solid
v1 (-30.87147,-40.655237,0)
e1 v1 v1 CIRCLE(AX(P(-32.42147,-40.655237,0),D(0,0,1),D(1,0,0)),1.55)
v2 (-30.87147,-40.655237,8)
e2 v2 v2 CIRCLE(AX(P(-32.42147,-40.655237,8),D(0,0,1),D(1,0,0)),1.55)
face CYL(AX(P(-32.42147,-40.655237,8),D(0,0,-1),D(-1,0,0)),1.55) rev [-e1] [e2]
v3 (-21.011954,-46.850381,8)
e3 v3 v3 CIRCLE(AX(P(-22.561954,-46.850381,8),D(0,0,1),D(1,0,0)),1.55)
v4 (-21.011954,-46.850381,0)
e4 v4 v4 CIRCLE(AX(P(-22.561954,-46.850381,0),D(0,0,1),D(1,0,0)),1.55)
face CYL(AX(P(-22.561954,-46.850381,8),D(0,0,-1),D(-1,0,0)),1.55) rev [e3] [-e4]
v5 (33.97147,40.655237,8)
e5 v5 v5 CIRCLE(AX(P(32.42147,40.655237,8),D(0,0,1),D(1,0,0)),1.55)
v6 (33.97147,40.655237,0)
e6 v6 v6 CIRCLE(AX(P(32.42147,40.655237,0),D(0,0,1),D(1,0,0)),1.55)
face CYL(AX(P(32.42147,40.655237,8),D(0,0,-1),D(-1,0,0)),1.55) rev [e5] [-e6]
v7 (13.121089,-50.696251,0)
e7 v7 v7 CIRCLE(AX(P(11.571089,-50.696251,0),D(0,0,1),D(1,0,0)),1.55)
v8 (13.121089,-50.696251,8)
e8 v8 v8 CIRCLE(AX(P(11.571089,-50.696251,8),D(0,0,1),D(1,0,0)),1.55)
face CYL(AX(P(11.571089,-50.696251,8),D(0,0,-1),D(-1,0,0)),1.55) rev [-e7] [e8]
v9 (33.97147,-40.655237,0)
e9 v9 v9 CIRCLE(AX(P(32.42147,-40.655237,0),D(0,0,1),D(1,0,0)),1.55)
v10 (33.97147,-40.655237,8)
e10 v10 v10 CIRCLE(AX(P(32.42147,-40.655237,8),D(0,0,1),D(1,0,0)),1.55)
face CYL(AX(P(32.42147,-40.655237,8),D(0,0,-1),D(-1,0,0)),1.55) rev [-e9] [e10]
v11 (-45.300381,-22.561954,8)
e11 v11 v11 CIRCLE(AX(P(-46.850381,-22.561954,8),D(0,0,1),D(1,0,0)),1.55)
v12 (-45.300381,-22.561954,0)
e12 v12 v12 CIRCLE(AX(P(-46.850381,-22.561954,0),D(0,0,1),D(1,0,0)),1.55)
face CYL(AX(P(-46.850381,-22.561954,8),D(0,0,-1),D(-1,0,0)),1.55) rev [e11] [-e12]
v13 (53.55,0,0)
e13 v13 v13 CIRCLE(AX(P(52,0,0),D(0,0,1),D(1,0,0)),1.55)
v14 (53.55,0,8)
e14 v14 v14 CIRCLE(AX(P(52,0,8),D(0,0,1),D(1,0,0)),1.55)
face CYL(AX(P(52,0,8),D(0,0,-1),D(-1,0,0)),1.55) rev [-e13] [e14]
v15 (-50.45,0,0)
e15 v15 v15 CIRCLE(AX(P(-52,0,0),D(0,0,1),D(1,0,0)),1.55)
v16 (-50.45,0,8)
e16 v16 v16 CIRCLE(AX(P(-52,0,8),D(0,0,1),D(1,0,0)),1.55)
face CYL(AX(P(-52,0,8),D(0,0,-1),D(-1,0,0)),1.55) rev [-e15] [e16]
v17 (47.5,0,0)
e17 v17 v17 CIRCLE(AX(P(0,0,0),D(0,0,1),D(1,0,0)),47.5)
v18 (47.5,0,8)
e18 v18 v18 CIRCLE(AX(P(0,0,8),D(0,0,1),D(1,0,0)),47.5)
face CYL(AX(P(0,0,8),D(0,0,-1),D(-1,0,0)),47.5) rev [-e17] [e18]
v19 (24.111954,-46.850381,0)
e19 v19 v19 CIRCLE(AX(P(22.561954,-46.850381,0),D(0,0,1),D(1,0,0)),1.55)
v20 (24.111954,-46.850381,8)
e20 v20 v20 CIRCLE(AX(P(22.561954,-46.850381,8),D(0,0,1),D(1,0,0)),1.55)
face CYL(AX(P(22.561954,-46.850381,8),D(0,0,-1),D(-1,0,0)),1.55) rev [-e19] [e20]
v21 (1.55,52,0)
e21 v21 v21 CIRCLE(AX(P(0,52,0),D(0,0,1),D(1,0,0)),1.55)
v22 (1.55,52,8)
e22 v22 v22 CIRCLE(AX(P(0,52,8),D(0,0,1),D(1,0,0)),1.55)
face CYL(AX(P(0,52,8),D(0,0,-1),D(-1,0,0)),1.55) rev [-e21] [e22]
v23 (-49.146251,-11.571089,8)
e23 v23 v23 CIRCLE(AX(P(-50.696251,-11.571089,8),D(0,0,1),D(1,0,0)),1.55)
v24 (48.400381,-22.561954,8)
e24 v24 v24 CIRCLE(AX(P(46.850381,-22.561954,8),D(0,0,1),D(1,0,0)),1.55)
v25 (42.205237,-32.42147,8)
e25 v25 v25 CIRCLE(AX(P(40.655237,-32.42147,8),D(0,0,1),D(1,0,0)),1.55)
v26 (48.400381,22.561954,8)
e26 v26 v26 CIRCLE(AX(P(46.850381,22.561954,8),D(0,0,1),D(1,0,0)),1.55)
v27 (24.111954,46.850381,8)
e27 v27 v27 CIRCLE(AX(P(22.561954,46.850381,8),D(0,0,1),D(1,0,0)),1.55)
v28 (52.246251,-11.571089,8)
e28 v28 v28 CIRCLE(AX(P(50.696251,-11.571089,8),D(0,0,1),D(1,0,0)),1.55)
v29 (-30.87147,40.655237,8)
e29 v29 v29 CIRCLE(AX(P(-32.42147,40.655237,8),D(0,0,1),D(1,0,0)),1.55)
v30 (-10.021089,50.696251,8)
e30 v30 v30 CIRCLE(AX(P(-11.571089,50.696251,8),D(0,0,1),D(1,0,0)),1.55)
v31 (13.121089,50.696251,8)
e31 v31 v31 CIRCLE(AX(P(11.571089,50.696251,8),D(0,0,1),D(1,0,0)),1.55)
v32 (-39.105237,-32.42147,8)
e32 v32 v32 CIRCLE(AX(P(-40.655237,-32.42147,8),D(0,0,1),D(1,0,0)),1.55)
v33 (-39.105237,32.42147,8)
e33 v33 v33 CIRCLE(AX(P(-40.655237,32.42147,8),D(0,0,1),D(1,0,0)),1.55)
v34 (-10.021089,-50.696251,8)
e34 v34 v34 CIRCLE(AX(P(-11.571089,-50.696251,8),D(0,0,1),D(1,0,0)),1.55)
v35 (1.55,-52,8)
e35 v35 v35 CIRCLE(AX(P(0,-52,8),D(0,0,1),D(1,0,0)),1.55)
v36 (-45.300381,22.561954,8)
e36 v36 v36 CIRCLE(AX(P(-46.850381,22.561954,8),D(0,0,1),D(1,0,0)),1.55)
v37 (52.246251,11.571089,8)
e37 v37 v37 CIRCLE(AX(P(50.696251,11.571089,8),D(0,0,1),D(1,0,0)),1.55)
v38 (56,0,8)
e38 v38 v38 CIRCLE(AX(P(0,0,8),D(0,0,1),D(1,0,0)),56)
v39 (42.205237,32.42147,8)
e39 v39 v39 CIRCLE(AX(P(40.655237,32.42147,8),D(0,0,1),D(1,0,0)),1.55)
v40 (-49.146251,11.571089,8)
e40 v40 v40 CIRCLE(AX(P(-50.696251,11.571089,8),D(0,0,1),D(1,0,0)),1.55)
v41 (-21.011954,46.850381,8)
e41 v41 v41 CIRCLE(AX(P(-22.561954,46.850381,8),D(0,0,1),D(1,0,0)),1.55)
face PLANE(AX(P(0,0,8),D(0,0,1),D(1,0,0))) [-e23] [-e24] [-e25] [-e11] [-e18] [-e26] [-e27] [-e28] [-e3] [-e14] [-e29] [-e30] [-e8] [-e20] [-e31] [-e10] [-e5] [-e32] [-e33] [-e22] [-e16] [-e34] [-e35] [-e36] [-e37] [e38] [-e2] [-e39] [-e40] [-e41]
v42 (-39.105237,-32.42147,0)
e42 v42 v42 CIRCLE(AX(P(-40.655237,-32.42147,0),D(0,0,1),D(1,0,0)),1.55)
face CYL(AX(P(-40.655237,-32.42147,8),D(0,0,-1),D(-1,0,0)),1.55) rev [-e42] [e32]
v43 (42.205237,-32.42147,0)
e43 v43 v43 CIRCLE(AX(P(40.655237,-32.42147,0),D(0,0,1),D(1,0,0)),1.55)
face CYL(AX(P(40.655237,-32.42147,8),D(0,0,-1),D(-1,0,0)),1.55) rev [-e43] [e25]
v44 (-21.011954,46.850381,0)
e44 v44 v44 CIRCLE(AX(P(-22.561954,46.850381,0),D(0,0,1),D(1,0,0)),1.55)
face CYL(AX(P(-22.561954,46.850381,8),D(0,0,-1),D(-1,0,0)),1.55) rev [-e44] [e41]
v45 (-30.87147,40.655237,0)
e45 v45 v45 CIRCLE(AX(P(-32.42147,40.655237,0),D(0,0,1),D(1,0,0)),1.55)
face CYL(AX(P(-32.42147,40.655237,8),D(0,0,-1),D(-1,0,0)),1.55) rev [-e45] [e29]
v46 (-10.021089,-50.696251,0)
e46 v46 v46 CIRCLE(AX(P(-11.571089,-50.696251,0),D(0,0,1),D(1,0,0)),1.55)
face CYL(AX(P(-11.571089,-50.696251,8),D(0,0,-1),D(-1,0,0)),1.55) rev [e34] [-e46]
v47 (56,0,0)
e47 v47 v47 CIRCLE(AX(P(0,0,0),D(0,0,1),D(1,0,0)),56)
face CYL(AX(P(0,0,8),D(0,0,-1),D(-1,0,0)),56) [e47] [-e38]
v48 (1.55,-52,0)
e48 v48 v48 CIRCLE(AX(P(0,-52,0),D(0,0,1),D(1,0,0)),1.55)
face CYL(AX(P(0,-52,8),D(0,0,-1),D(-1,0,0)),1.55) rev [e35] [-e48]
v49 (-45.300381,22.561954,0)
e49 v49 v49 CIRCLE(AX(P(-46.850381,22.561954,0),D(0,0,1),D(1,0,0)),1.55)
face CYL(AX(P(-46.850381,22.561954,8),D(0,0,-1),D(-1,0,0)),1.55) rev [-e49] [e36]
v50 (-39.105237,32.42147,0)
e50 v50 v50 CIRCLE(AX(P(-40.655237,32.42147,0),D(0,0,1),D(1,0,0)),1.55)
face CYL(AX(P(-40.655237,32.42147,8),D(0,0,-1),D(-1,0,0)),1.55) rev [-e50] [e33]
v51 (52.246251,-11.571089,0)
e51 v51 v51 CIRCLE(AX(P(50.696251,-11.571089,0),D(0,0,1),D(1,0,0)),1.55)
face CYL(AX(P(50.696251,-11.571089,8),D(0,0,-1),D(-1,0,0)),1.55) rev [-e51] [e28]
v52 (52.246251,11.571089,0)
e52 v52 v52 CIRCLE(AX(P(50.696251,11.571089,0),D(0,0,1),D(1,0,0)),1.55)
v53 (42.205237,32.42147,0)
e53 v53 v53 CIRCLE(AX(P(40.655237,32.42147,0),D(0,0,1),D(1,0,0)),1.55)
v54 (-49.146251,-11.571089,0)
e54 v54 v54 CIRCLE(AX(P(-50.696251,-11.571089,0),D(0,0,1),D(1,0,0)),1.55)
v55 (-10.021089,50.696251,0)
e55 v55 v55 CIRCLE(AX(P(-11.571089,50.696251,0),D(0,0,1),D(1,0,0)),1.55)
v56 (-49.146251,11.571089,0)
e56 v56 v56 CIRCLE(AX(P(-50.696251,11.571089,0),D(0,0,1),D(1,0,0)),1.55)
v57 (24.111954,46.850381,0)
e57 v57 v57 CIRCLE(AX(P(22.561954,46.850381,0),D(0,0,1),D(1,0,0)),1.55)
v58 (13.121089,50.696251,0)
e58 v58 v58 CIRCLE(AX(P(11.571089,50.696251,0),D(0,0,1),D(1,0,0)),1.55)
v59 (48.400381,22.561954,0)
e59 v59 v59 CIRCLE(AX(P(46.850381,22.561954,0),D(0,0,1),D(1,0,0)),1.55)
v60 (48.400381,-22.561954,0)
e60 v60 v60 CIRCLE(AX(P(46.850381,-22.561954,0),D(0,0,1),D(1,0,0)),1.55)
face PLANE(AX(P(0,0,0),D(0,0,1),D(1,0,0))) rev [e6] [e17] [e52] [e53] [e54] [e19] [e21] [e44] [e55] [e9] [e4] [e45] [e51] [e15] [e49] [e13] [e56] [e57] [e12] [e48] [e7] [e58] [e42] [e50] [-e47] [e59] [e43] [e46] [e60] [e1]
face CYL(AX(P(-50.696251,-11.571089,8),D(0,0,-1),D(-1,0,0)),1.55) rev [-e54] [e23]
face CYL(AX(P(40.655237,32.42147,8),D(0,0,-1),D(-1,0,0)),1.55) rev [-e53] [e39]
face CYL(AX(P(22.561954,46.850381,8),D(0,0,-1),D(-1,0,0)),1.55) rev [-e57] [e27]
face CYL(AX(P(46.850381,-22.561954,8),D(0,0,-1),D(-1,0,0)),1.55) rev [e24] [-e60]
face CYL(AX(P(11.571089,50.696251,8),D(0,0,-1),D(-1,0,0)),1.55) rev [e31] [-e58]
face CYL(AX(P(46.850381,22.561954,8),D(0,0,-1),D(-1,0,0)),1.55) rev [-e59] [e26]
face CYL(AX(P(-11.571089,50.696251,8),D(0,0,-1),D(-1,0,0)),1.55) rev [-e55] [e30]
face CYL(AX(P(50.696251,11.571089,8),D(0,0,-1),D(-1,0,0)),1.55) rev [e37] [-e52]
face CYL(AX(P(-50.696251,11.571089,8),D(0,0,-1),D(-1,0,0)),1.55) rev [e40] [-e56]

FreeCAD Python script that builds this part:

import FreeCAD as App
import Part
import Sketcher

doc = App.newDocument("Part")
params = doc.addObject("Spreadsheet::Sheet", "Params")
for row, (alias, value) in enumerate([
    ("sketch1_diameter", "112 mm"),
    ("sketch1_diameter2", "95 mm"),
    ("sketch1_diameter3", "3.1 mm"),
    ("pad1_length", "8 mm"),
], start=1):
    params.set(f"A{row}", alias)
    params.set(f"B{row}", "=" + value)
    params.setAlias(f"B{row}", alias)

body = doc.addObject("PartDesign::Body", "Body")

sketch1 = body.newObject("Sketcher::SketchObject", "Sketch")
sketch1.AttachmentSupport = (doc.getObject("XY_Plane"), [""])
sketch1.MapMode = "FlatFace"
sketch1.addGeometry([
    Part.Circle(App.Vector(0, 0, 0), App.Vector(0, 0, 1), 56),
    Part.Circle(App.Vector(-32.42147, -40.655237, 0), App.Vector(0, 0, 1), 1.55),
    Part.Circle(App.Vector(-40.655237, -32.42147, 0), App.Vector(0, 0, 1), 1.55),
    Part.Circle(App.Vector(-22.561954, -46.850381, 0), App.Vector(0, 0, 1), 1.55),
    Part.Circle(App.Vector(-11.571089, -50.696251, 0), App.Vector(0, 0, 1), 1.55),
    Part.Circle(App.Vector(0, -52, 0), App.Vector(0, 0, 1), 1.55),
    Part.Circle(App.Vector(-46.850381, -22.561954, 0), App.Vector(0, 0, 1), 1.55),
    Part.Circle(App.Vector(-50.696251, -11.571089, 0), App.Vector(0, 0, 1), 1.55),
    Part.Circle(App.Vector(-52, 0, 0), App.Vector(0, 0, 1), 1.55),
    Part.Circle(App.Vector(0, 0, 0), App.Vector(0, 0, 1), 47.5),
    Part.Circle(App.Vector(11.571089, -50.696251, 0), App.Vector(0, 0, 1), 1.55),
    Part.Circle(App.Vector(22.561954, -46.850381, 0), App.Vector(0, 0, 1), 1.55),
    Part.Circle(App.Vector(32.42147, -40.655237, 0), App.Vector(0, 0, 1), 1.55),
    Part.Circle(App.Vector(40.655237, -32.42147, 0), App.Vector(0, 0, 1), 1.55),
    Part.Circle(App.Vector(46.850381, -22.561954, 0), App.Vector(0, 0, 1), 1.55),
    Part.Circle(App.Vector(50.696251, -11.571089, 0), App.Vector(0, 0, 1), 1.55),
    Part.Circle(App.Vector(52, 0, 0), App.Vector(0, 0, 1), 1.55),
    Part.Circle(App.Vector(-50.696251, 11.571089, 0), App.Vector(0, 0, 1), 1.55),
    Part.Circle(App.Vector(-46.850381, 22.561954, 0), App.Vector(0, 0, 1), 1.55),
    Part.Circle(App.Vector(-40.655237, 32.42147, 0), App.Vector(0, 0, 1), 1.55),
    Part.Circle(App.Vector(-32.42147, 40.655237, 0), App.Vector(0, 0, 1), 1.55),
    Part.Circle(App.Vector(-22.561954, 46.850381, 0), App.Vector(0, 0, 1), 1.55),
    Part.Circle(App.Vector(-11.571089, 50.696251, 0), App.Vector(0, 0, 1), 1.55),
    Part.Circle(App.Vector(0, 52, 0), App.Vector(0, 0, 1), 1.55),
    Part.Circle(App.Vector(50.696251, 11.571089, 0), App.Vector(0, 0, 1), 1.55),
    Part.Circle(App.Vector(46.850381, 22.561954, 0), App.Vector(0, 0, 1), 1.55),
    Part.Circle(App.Vector(11.571089, 50.696251, 0), App.Vector(0, 0, 1), 1.55),
    Part.Circle(App.Vector(22.561954, 46.850381, 0), App.Vector(0, 0, 1), 1.55),
    Part.Circle(App.Vector(40.655237, 32.42147, 0), App.Vector(0, 0, 1), 1.55),
    Part.Circle(App.Vector(32.42147, 40.655237, 0), App.Vector(0, 0, 1), 1.55),
], False)
sketch1.addConstraint([
    Sketcher.Constraint("Coincident", 0, 3, -1, 1),
    Sketcher.Constraint("Coincident", 9, 3, -1, 1),
    Sketcher.Constraint("Equal", 1, 2),
    Sketcher.Constraint("Equal", 2, 3),
    Sketcher.Constraint("Equal", 3, 4),
    Sketcher.Constraint("Equal", 4, 5),
    Sketcher.Constraint("Equal", 5, 6),
    Sketcher.Constraint("Equal", 6, 7),
    Sketcher.Constraint("Equal", 7, 8),
    Sketcher.Constraint("Equal", 8, 10),
    Sketcher.Constraint("Equal", 10, 11),
    Sketcher.Constraint("Equal", 11, 12),
    Sketcher.Constraint("Equal", 12, 13),
    Sketcher.Constraint("Equal", 13, 14),
    Sketcher.Constraint("Equal", 14, 15),
    Sketcher.Constraint("Equal", 15, 16),
    Sketcher.Constraint("Equal", 16, 17),
    Sketcher.Constraint("Equal", 17, 18),
    Sketcher.Constraint("Equal", 18, 19),
    Sketcher.Constraint("Equal", 19, 20),
    Sketcher.Constraint("Equal", 20, 21),
    Sketcher.Constraint("Equal", 21, 22),
    Sketcher.Constraint("Equal", 22, 23),
    Sketcher.Constraint("Equal", 23, 24),
    Sketcher.Constraint("Equal", 24, 25),
    Sketcher.Constraint("Equal", 25, 26),
    Sketcher.Constraint("Equal", 26, 27),
    Sketcher.Constraint("Equal", 27, 28),
    Sketcher.Constraint("Equal", 28, 29),
    Sketcher.Constraint("Symmetric", 8, 3, 16, 3, -1, 1),
    Sketcher.Constraint("Symmetric", 15, 3, 17, 3, -1, 1),
    Sketcher.Constraint("Symmetric", 14, 3, 18, 3, -1, 1),
    Sketcher.Constraint("Symmetric", 13, 3, 19, 3, -1, 1),
    Sketcher.Constraint("Symmetric", 12, 3, 20, 3, -1, 1),
    Sketcher.Constraint("Symmetric", 11, 3, 21, 3, -1, 1),
    Sketcher.Constraint("Symmetric", 10, 3, 22, 3, -1, 1),
    Sketcher.Constraint("Symmetric", 5, 3, 23, 3, -1, 1),
    Sketcher.Constraint("Symmetric", 7, 3, 24, 3, -1, 1),
    Sketcher.Constraint("Symmetric", 6, 3, 25, 3, -1, 1),
    Sketcher.Constraint("Symmetric", 4, 3, 26, 3, -1, 1),
    Sketcher.Constraint("Symmetric", 3, 3, 27, 3, -1, 1),
    Sketcher.Constraint("Symmetric", 2, 3, 28, 3, -1, 1),
    Sketcher.Constraint("Symmetric", 1, 3, 29, 3, -1, 1),
    Sketcher.Constraint("Symmetric", 4, 3, 10, 3, -2),
    Sketcher.Constraint("Symmetric", 3, 3, 11, 3, -2),
    Sketcher.Constraint("Symmetric", 1, 3, 12, 3, -2),
    Sketcher.Constraint("Symmetric", 2, 3, 13, 3, -2),
    Sketcher.Constraint("Symmetric", 6, 3, 14, 3, -2),
    Sketcher.Constraint("Symmetric", 7, 3, 15, 3, -2),
    Sketcher.Constraint("PointOnObject", 5, 3, -2),
    Sketcher.Constraint("PointOnObject", 8, 3, -1),
    Sketcher.Constraint("Diameter", 0, 112.0),
    Sketcher.Constraint("Diameter", 9, 95.0),
    Sketcher.Constraint("Diameter", 1, 3.1),
    Sketcher.Constraint("DistanceY", 5, 3, -1, 1, 52.0),
    Sketcher.Constraint("DistanceX", 8, 3, -1, 1, 52.0),
    Sketcher.Constraint("DistanceX", 1, 3, -1, 1, 32.42147),
    Sketcher.Constraint("DistanceY", 2, 3, -1, 1, 32.42147),
    Sketcher.Constraint("DistanceY", 3, 3, -1, 1, 46.850381),
    Sketcher.Constraint("DistanceX", 4, 3, -1, 1, 11.571089),
    Sketcher.Constraint("DistanceY", 4, 3, -1, 1, 50.696251),
    Sketcher.Constraint("DistanceX", 6, 3, -1, 1, 46.850381),
    Sketcher.Constraint("DistanceX", 7, 3, -1, 1, 50.696251),
    Sketcher.Constraint("DistanceY", 7, 3, -1, 1, 11.571089),
    Sketcher.Constraint("DistanceX", 2, 3, 4, 3, 29.084149),
    Sketcher.Constraint("DistanceY", 1, 3, 7, 3, 29.084149),
    Sketcher.Constraint("DistanceX", 3, 3, 11, 3, 45.123909),
    Sketcher.Constraint("DistanceY", 6, 3, 18, 3, 45.123909),
])
sketch1.setExpression("Constraints[51]", "Params.sketch1_diameter")
sketch1.setExpression("Constraints[52]", "Params.sketch1_diameter2")
sketch1.setExpression("Constraints[53]", "Params.sketch1_diameter3")
pad1 = body.newObject("PartDesign::Pad", "Pad")
pad1.Profile = sketch1
pad1.setExpression("Length", "Params.pad1_length")

doc.recompute()
